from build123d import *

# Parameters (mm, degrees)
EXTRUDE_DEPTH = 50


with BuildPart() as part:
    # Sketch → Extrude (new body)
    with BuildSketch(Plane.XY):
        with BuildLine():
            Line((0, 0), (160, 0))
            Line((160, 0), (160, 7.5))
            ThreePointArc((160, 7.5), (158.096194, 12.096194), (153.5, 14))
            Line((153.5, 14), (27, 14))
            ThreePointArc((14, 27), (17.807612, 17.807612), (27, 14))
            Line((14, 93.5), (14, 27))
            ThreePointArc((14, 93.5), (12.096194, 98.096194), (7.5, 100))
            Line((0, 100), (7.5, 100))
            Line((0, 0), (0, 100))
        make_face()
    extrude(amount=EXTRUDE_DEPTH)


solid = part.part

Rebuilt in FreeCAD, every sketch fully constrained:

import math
import FreeCAD as App
import Part
import Sketcher
from FreeCAD import Vector
Q = App.Units.Quantity

doc = App.newDocument("Part")
body = doc.addObject("PartDesign::Body", "Body")

# Sketch on XY plane
sketch1 = body.newObject("Sketcher::SketchObject", "Sketch")
sketch1.AttachmentSupport = (doc.getObject("XY_Plane"), [""])
sketch1.MapMode = "FlatFace"
sketch1.addGeometry(Part.LineSegment(Vector(0, 0, 0), Vector(160, 0, 0)), False)
sketch1.addGeometry(Part.LineSegment(Vector(160, 0, 0), Vector(160, 8, 0)), False)
sketch1.addGeometry(Part.ArcOfCircle(Part.Circle(Vector(153, 7, 0), Vector(0, 0, 1), 7), math.radians(0), math.radians(90)), False)
sketch1.addGeometry(Part.LineSegment(Vector(154, 14, 0), Vector(27, 14, 0)), False)
sketch1.addGeometry(Part.ArcOfCircle(Part.Circle(Vector(27, 27, 0), Vector(0, 0, 1), 13), math.radians(-180), math.radians(-90)), False)
sketch1.addGeometry(Part.LineSegment(Vector(14, 27, 0), Vector(14, 94, 0)), False)
sketch1.addGeometry(Part.ArcOfCircle(Part.Circle(Vector(7, 93, 0), Vector(0, 0, 1), 7), math.radians(0), math.radians(90)), False)
sketch1.addGeometry(Part.LineSegment(Vector(8, 100, 0), Vector(0, 100, 0)), False)
sketch1.addGeometry(Part.LineSegment(Vector(0, 100, 0), Vector(0, 0, 0)), False)
sketch1.addConstraint(Sketcher.Constraint("Coincident", 0, 2, 1, 1))
sketch1.addConstraint(Sketcher.Constraint("Tangent", 1, 2, 2, 1))
sketch1.addConstraint(Sketcher.Constraint("Tangent", 2, 2, 3, 1))
sketch1.addConstraint(Sketcher.Constraint("Tangent", 3, 2, 4, 2))
sketch1.addConstraint(Sketcher.Constraint("Tangent", 4, 1, 5, 1))
sketch1.addConstraint(Sketcher.Constraint("Tangent", 5, 2, 6, 1))
sketch1.addConstraint(Sketcher.Constraint("Tangent", 6, 2, 7, 1))
sketch1.addConstraint(Sketcher.Constraint("Coincident", 7, 2, 8, 1))
sketch1.addConstraint(Sketcher.Constraint("Coincident", 8, 2, 0, 1))
sketch1.addConstraint(Sketcher.Constraint("Horizontal", 0))
sketch1.addConstraint(Sketcher.Constraint("Vertical", 1))
sketch1.addConstraint(Sketcher.Constraint("Horizontal", 3))
sketch1.addConstraint(Sketcher.Constraint("Vertical", 5))
sketch1.addConstraint(Sketcher.Constraint("Horizontal", 7))
sketch1.addConstraint(Sketcher.Constraint("Vertical", 8))
sketch1.addConstraint(Sketcher.Constraint("Coincident", 8, 2, -1, 1))
sketch1.addConstraint(Sketcher.Constraint("Equal", 2, 6))
sketch1.addConstraint(Sketcher.Constraint("Equal", 7, 1))
sketch1.addConstraint(Sketcher.Constraint("Radius", 4, Q("13.000001 mm")))
sketch1.addConstraint(Sketcher.Constraint("Radius", 2, Q("6.5 mm")))
sketch1.addConstraint(Sketcher.Constraint("DistanceX", 0, 1, 0, 2, Q("160 mm")))
sketch1.addConstraint(Sketcher.Constraint("DistanceY", 8, 2, 8, 1, Q("100 mm")))
sketch1.addConstraint(Sketcher.Constraint("DistanceX", 3, 2, 3, 1, Q("126.5 mm")))
pad1 = body.newObject("PartDesign::Pad", "Pad")
pad1.Profile = sketch1
pad1.Length = 50

doc.recompute()
